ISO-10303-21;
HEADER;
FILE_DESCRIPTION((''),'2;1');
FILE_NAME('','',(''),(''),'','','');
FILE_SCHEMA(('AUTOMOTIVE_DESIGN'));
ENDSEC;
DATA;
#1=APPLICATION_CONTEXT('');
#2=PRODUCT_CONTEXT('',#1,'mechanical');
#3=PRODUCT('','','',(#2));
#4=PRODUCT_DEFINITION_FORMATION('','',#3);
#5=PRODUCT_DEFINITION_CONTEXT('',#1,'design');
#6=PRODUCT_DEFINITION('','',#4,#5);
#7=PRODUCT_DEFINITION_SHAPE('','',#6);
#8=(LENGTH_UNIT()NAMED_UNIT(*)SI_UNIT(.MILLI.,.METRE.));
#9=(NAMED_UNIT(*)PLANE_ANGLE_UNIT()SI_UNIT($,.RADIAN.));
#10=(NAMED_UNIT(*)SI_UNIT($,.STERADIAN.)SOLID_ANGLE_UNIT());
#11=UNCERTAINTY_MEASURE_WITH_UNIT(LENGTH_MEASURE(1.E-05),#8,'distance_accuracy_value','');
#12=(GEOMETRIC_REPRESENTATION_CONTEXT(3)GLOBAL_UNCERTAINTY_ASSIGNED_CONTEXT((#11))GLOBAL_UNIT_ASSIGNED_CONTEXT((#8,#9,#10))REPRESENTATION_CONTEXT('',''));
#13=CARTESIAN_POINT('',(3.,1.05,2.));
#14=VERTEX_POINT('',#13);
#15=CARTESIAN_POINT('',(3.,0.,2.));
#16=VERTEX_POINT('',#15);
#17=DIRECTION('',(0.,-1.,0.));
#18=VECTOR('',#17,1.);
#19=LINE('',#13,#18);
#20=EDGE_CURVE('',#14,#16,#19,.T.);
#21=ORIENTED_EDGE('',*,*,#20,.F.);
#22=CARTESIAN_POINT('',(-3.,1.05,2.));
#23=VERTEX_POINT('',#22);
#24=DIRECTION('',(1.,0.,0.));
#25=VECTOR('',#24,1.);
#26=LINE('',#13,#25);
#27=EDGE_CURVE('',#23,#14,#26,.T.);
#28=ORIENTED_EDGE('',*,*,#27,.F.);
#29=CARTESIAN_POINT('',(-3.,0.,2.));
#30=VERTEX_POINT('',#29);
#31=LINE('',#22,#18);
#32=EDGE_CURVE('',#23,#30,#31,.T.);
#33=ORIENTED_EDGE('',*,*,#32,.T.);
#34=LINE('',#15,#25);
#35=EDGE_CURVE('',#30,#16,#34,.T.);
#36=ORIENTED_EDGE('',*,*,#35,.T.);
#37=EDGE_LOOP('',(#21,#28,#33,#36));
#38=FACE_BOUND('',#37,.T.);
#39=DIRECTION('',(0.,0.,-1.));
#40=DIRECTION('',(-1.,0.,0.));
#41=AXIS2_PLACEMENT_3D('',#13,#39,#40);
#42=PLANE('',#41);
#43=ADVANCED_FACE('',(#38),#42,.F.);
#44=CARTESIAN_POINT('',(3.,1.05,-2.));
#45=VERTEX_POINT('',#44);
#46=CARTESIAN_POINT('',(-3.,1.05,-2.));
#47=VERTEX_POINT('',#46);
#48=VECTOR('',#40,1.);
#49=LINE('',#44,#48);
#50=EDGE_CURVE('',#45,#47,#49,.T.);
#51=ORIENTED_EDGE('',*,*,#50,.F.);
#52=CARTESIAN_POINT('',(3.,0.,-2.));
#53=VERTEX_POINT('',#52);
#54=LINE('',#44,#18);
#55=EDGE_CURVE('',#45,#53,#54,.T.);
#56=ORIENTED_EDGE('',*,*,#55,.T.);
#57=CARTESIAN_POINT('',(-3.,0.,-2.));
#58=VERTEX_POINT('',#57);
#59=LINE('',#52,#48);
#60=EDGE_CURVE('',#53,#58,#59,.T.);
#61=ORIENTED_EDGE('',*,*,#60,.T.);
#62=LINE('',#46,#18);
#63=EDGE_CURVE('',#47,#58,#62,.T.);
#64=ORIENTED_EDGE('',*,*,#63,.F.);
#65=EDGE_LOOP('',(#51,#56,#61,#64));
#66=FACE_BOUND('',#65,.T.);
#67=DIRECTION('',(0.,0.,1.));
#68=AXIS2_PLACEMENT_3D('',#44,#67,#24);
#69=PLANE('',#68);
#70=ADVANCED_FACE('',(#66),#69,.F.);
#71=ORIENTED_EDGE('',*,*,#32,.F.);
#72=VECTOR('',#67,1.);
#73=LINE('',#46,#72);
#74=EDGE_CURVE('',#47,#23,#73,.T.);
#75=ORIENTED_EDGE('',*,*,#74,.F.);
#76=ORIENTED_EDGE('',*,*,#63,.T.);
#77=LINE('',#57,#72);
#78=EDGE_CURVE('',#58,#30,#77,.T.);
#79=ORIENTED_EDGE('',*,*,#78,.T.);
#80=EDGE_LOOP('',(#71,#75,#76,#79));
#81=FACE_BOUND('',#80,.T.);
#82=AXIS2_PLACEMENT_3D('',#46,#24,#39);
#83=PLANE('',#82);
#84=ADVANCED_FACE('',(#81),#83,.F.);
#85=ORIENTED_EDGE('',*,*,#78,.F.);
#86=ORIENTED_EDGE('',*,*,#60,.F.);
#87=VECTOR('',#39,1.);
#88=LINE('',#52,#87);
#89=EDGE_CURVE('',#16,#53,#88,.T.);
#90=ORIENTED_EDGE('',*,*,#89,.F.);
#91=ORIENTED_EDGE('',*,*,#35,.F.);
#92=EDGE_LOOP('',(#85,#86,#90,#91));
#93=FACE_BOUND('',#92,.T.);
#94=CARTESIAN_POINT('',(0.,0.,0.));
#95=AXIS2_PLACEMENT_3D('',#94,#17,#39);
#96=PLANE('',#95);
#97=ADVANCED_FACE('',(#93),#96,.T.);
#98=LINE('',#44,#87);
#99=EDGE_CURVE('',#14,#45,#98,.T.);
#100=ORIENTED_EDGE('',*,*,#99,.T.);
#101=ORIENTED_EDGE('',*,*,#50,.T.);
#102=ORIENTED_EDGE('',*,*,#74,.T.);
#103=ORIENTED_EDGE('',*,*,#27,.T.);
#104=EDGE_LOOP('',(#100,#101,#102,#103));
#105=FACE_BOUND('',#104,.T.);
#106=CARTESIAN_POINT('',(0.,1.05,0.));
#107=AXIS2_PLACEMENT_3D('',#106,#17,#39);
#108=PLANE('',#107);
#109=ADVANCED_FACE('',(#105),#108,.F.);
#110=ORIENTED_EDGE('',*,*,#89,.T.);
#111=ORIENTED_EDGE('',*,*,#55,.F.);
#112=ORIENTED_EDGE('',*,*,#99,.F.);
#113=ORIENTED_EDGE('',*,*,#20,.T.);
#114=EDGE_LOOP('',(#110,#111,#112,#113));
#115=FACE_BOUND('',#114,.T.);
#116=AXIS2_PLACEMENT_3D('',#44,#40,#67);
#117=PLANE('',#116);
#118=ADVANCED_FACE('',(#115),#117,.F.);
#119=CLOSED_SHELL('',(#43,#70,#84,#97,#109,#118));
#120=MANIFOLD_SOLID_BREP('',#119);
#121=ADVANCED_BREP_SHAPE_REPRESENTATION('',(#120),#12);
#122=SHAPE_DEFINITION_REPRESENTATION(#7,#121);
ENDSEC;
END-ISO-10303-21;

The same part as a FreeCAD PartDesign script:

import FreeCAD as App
import Part
import Sketcher
Q = App.Units.Quantity

doc = App.newDocument("Part")
params = doc.addObject("Spreadsheet::Sheet", "Params")
for row, (alias, value) in enumerate([
    ("sketch1_width", "6 mm"),
    ("sketch1_height", "4 mm"),
    ("pad1_length", "1.05 mm"),
], start=1):
    params.set(f"A{row}", alias)
    params.set(f"B{row}", "=" + value)
    params.setAlias(f"B{row}", alias)

body = doc.addObject("PartDesign::Body", "Body")

# Sketch on XZ plane
sketch1 = body.newObject("Sketcher::SketchObject", "Sketch")
sketch1.AttachmentSupport = (doc.getObject("XZ_Plane"), [""])
sketch1.MapMode = "FlatFace"
sketch1.addGeometry(Part.LineSegment(App.Vector(-3, -2, 0), App.Vector(-3, 2, 0)), False)
sketch1.addGeometry(Part.LineSegment(App.Vector(-3, 2, 0), App.Vector(3, 2, 0)), False)
sketch1.addGeometry(Part.LineSegment(App.Vector(3, 2, 0), App.Vector(3, -2, 0)), False)
sketch1.addGeometry(Part.LineSegment(App.Vector(3, -2, 0), App.Vector(-3, -2, 0)), False)
sketch1.addConstraint(Sketcher.Constraint("Coincident", 0, 2, 1, 1))
sketch1.addConstraint(Sketcher.Constraint("Coincident", 1, 2, 2, 1))
sketch1.addConstraint(Sketcher.Constraint("Coincident", 2, 2, 3, 1))
sketch1.addConstraint(Sketcher.Constraint("Coincident", 3, 2, 0, 1))
sketch1.addConstraint(Sketcher.Constraint("Vertical", 0))
sketch1.addConstraint(Sketcher.Constraint("Horizontal", 1))
sketch1.addConstraint(Sketcher.Constraint("Vertical", 2))
sketch1.addConstraint(Sketcher.Constraint("Horizontal", 3))
sketch1.addConstraint(Sketcher.Constraint("Symmetric", 0, 2, 2, 2, -1, 1))
sketch1.addConstraint(Sketcher.Constraint("DistanceX", 1, 1, 1, 2, Q("6 mm")))
sketch1.addConstraint(Sketcher.Constraint("DistanceY", 0, 1, 0, 2, Q("4 mm")))
sketch1.setExpression("Constraints[9]", "Params.sketch1_width")
sketch1.setExpression("Constraints[10]", "Params.sketch1_height")
pad1 = body.newObject("PartDesign::Pad", "Pad")
pad1.Profile = sketch1
pad1.setExpression("Length", "Params.pad1_length")
pad1.Reversed = True

doc.recompute()
